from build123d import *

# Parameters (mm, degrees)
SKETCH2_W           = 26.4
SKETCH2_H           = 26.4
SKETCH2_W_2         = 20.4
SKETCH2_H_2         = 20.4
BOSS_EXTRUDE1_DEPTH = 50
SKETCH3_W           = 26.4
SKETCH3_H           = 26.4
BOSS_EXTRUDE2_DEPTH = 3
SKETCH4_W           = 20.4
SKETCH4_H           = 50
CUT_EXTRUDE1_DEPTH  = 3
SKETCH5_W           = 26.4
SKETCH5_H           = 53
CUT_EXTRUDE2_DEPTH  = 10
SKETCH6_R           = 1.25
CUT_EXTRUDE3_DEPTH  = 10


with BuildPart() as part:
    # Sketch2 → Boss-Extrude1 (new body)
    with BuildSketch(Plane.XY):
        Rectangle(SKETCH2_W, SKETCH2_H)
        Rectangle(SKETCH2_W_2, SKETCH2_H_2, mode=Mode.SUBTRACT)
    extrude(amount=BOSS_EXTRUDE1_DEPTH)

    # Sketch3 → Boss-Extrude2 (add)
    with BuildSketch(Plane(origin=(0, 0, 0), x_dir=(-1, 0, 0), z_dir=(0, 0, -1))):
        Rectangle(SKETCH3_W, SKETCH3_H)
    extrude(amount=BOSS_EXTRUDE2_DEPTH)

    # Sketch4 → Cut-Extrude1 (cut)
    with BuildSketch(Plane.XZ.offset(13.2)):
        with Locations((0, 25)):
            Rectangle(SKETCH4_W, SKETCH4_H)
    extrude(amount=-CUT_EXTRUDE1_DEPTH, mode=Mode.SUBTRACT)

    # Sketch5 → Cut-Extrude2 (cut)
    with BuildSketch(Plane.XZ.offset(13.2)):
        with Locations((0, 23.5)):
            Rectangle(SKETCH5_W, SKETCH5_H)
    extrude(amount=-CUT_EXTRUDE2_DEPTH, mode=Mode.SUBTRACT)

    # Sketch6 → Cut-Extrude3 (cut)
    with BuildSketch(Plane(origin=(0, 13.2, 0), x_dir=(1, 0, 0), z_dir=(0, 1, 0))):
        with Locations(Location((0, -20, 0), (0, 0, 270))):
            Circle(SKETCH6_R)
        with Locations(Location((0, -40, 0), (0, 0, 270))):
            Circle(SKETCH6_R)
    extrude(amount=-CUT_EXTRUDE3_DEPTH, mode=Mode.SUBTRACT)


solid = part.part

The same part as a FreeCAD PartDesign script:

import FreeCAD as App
import Part
import Sketcher

V = App.Vector
Q = App.Units.Quantity


def add_polygon(sketch, points):
    """Adds a closed chain of lines whose ends are joined by coincident constraints."""
    first, n = sketch.GeometryCount, len(points)
    for a, b in zip(points, points[1:] + points[:1]):
        sketch.addGeometry(Part.LineSegment(App.Vector(*a, 0), App.Vector(*b, 0)), False)
    for i in range(n):
        sketch.addConstraint(Sketcher.Constraint("Coincident", first + i, 2, first + (i + 1) % n, 1))

doc = App.newDocument("Part")
body = doc.addObject("PartDesign::Body", "Body")

# Sketch on XY plane
sketch1 = body.newObject("Sketcher::SketchObject", "Sketch")
sketch1.AttachmentSupport = (doc.getObject("XY_Plane"), [""])
sketch1.MapMode = "FlatFace"
add_polygon(sketch1, [(-13, 13), (-13, -13), (13, -13), (13, 13)])  # lines 0-3
add_polygon(sketch1, [(10, -10), (-10, -10), (-10, 10), (10, 10)])  # lines 4-7
sketch1.addConstraint(Sketcher.Constraint("Vertical", 0))
sketch1.addConstraint(Sketcher.Constraint("Horizontal", 1))
sketch1.addConstraint(Sketcher.Constraint("Vertical", 2))
sketch1.addConstraint(Sketcher.Constraint("Horizontal", 3))
sketch1.addConstraint(Sketcher.Constraint("Horizontal", 4))
sketch1.addConstraint(Sketcher.Constraint("Vertical", 5))
sketch1.addConstraint(Sketcher.Constraint("Horizontal", 6))
sketch1.addConstraint(Sketcher.Constraint("Vertical", 7))
sketch1.addConstraint(Sketcher.Constraint("Symmetric", 0, 2, 2, 2, -1, 1))
sketch1.addConstraint(Sketcher.Constraint("Symmetric", 4, 2, 6, 2, -1, 1))
sketch1.addConstraint(Sketcher.Constraint("Equal", 3, 0))
sketch1.addConstraint(Sketcher.Constraint("Equal", 6, 5))
sketch1.addConstraint(Sketcher.Constraint("DistanceX", 1, 1, 1, 2, Q("26.4 mm")))
sketch1.addConstraint(Sketcher.Constraint("DistanceX", 4, 2, 4, 1, Q("20.4 mm")))
pad1 = body.newObject("PartDesign::Pad", "Pad")
pad1.Profile = sketch1
pad1.Length = 50

# Sketch on XY plane
sketch2 = body.newObject("Sketcher::SketchObject", "Sketch001")
sketch2.AttachmentSupport = (doc.getObject("XY_Plane"), [""])
sketch2.MapMode = "FlatFace"
add_polygon(sketch2, [(13, 13), (13, -13), (-13, -13), (-13, 13)])  # lines 0-3
sketch2.addConstraint(Sketcher.Constraint("Vertical", 0))
sketch2.addConstraint(Sketcher.Constraint("Horizontal", 1))
sketch2.addConstraint(Sketcher.Constraint("Vertical", 2))
sketch2.addConstraint(Sketcher.Constraint("Horizontal", 3))
sketch2.addConstraint(Sketcher.Constraint("Symmetric", 0, 2, 2, 2, -1, 1))
sketch2.addConstraint(Sketcher.Constraint("Equal", 3, 0))
sketch2.addConstraint(Sketcher.Constraint("DistanceX", 1, 2, 1, 1, Q("26.4 mm")))
pad2 = body.newObject("PartDesign::Pad", "Pad001")
pad2.Profile = sketch2
pad2.Length = 3
pad2.Reversed = True

# Sketch on XZ plane
sketch3 = body.newObject("Sketcher::SketchObject", "Sketch002")
sketch3.AttachmentSupport = (doc.getObject("XZ_Plane"), [""])
sketch3.MapMode = "FlatFace"
sketch3.AttachmentOffset = App.Placement(V(0, 0, 13.2), App.Rotation())
add_polygon(sketch3, [(-10, 50), (-10, 0), (10, 0), (10, 50)])  # lines 0-3
sketch3.addConstraint(Sketcher.Constraint("Vertical", 0))
sketch3.addConstraint(Sketcher.Constraint("Horizontal", 1))
sketch3.addConstraint(Sketcher.Constraint("Vertical", 2))
sketch3.addConstraint(Sketcher.Constraint("Horizontal", 3))
sketch3.addConstraint(Sketcher.Constraint("Symmetric", 0, 2, 1, 2, -1, 1))
sketch3.addConstraint(Sketcher.Constraint("DistanceY", 0, 2, 0, 1, Q("50 mm")))
sketch3.addConstraint(Sketcher.Constraint("DistanceX", 1, 1, 1, 2, Q("20.4 mm")))
pocket1 = body.newObject("PartDesign::Pocket", "Pocket")
pocket1.Profile = sketch3
pocket1.Length = 3

# Sketch on XZ plane
sketch4 = body.newObject("Sketcher::SketchObject", "Sketch003")
sketch4.AttachmentSupport = (doc.getObject("XZ_Plane"), [""])
sketch4.MapMode = "FlatFace"
sketch4.AttachmentOffset = App.Placement(V(0, 0, 13.2), App.Rotation())
add_polygon(sketch4, [(-13, 50), (-13, -3), (13, -3), (13, 50)])  # lines 0-3
sketch4.addConstraint(Sketcher.Constraint("Vertical", 0))
sketch4.addConstraint(Sketcher.Constraint("Horizontal", 1))
sketch4.addConstraint(Sketcher.Constraint("Vertical", 2))
sketch4.addConstraint(Sketcher.Constraint("Horizontal", 3))
sketch4.addConstraint(Sketcher.Constraint("DistanceY", 0, 2, 0, 1, Q("53 mm")))
sketch4.addConstraint(Sketcher.Constraint("DistanceX", 1, 1, 1, 2, Q("26.4 mm")))
sketch4.addConstraint(Sketcher.Constraint("DistanceY", 0, 2, -1, 1, Q("3 mm")))
sketch4.addConstraint(Sketcher.Constraint("DistanceX", 0, 2, -1, 1, Q("13.2 mm")))
pocket2 = body.newObject("PartDesign::Pocket", "Pocket001")
pocket2.Profile = sketch4
pocket2.Length = 10

# Sketch on XZ plane
sketch5 = body.newObject("Sketcher::SketchObject", "Sketch004")
sketch5.AttachmentSupport = (doc.getObject("XZ_Plane"), [""])
sketch5.MapMode = "FlatFace"
sketch5.AttachmentOffset = App.Placement(V(0, 0, -13.2), App.Rotation())
sketch5.addGeometry(Part.Circle(V(0, 20, 0), V(0, 0, 1), 1.2), False)
sketch5.addGeometry(Part.Circle(V(0, 40, 0), V(0, 0, 1), 1.2), False)
sketch5.addConstraint(Sketcher.Constraint("Equal", 0, 1))
sketch5.addConstraint(Sketcher.Constraint("PointOnObject", 0, 3, -2))
sketch5.addConstraint(Sketcher.Constraint("PointOnObject", 1, 3, -2))
sketch5.addConstraint(Sketcher.Constraint("Diameter", 0, Q("2.5 mm")))
sketch5.addConstraint(Sketcher.Constraint("DistanceY", -1, 1, 0, 3, Q("20 mm")))
sketch5.addConstraint(Sketcher.Constraint("DistanceY", -1, 1, 1, 3, Q("40 mm")))
pocket3 = body.newObject("PartDesign::Pocket", "Pocket002")
pocket3.Profile = sketch5
pocket3.Length = 10
pocket3.Reversed = True

doc.recompute()
